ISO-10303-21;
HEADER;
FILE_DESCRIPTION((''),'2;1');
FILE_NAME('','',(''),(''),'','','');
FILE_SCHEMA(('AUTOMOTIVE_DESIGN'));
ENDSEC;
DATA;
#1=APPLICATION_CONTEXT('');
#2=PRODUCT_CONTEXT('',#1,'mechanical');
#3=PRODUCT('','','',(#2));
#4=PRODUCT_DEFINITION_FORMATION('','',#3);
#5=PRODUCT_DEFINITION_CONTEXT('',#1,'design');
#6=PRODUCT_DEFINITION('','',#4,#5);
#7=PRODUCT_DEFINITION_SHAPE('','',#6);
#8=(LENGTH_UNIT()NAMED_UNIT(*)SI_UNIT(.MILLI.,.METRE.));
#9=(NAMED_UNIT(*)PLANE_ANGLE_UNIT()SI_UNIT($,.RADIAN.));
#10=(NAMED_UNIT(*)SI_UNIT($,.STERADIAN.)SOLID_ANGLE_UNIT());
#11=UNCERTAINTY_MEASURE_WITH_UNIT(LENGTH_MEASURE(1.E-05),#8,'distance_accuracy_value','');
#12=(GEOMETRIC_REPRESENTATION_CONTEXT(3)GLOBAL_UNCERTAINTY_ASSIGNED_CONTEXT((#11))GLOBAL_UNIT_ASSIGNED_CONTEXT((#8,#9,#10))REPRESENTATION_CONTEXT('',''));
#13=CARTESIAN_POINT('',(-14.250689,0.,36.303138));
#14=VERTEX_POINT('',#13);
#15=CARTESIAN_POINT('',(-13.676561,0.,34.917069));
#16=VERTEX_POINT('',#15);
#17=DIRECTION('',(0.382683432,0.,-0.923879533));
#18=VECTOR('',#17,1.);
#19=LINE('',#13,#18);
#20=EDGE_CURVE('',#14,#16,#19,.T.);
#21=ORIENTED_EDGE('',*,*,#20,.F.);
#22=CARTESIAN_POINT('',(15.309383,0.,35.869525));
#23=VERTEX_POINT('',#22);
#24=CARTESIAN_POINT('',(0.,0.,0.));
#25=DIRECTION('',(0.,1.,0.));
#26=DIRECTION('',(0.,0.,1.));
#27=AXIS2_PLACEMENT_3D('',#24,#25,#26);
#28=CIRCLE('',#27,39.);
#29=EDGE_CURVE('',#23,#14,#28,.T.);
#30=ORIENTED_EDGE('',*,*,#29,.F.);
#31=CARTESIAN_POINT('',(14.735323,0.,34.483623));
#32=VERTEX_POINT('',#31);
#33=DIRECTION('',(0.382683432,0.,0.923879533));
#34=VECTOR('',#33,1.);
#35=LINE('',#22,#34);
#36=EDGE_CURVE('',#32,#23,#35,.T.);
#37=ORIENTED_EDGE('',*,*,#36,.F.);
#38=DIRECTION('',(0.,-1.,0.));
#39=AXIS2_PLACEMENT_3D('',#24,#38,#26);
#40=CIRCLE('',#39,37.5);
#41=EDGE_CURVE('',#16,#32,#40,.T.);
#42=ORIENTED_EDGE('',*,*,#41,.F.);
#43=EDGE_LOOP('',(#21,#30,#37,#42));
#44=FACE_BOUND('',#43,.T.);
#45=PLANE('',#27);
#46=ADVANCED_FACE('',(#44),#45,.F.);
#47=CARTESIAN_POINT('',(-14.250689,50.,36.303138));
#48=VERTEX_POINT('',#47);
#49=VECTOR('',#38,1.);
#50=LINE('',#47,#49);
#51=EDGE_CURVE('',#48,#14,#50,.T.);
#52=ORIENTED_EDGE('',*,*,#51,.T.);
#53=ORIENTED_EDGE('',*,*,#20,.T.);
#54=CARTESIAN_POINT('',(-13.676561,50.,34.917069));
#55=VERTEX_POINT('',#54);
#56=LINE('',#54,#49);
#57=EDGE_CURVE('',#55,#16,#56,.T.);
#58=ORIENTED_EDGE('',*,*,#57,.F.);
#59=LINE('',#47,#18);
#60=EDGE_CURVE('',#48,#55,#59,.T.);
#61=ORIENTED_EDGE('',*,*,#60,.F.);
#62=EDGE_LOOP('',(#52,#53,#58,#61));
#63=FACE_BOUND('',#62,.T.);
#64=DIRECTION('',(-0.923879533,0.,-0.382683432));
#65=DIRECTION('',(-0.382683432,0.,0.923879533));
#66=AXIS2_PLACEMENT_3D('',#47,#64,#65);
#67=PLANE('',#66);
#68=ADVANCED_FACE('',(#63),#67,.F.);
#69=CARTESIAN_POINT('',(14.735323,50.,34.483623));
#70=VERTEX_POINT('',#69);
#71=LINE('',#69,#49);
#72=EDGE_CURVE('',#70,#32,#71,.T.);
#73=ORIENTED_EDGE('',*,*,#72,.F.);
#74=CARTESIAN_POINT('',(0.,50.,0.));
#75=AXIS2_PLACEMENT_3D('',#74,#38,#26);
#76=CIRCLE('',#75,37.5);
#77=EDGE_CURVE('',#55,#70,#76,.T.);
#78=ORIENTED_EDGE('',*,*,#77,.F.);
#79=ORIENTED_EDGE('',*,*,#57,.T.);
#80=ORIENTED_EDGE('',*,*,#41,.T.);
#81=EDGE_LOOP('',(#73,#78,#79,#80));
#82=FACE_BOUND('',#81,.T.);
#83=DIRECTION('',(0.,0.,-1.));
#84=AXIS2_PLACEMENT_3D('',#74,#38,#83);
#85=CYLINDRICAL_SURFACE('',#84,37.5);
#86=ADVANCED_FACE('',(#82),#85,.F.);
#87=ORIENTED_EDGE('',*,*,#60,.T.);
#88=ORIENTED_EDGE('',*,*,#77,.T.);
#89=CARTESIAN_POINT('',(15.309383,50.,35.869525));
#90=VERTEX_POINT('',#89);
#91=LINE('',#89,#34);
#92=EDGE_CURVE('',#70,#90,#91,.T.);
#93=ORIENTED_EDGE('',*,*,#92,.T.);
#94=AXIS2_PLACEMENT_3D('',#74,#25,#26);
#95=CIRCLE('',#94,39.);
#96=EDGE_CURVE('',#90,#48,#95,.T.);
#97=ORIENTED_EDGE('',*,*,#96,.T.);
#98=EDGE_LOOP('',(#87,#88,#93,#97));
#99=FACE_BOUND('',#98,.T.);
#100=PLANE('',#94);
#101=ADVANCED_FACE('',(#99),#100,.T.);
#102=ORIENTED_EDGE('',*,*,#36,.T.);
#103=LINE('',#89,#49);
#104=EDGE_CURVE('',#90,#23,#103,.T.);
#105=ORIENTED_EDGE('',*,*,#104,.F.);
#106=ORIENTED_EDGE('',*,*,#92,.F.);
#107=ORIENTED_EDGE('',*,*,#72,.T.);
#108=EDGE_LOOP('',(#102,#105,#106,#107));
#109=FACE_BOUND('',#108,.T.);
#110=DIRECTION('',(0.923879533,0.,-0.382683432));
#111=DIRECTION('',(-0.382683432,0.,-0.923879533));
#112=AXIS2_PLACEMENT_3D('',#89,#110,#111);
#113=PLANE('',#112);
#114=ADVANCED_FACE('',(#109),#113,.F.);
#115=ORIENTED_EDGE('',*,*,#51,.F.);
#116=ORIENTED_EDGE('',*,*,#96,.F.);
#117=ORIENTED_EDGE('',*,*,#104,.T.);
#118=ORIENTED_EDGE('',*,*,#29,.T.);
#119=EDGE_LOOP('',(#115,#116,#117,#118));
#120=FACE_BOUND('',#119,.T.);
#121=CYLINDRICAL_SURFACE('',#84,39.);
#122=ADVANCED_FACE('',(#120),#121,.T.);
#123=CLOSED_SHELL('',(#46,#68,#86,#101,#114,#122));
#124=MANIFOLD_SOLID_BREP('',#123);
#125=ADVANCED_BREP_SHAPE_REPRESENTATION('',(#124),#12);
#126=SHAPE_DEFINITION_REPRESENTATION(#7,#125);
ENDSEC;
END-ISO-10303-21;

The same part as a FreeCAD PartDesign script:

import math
import FreeCAD as App
import Part
import Sketcher
from FreeCAD import Vector
Q = App.Units.Quantity

doc = App.newDocument("Part")
body = doc.addObject("PartDesign::Body", "Body")

sketch1 = body.newObject("Sketcher::SketchObject", "Sketch")
sketch1.AttachmentSupport = (doc.getObject("XZ_Plane"), [""])
sketch1.MapMode = "FlatFace"
sketch1.addGeometry(Part.LineSegment(Vector(-14.3, 36.3, 0), Vector(-13.7, 34.9, 0)), False)
sketch1.addGeometry(Part.ArcOfCircle(Part.Circle(Vector(0, 0, 0), Vector(0, 0, 1), 37.5), math.radians(111), math.radians(427)), False)
sketch1.addGeometry(Part.LineSegment(Vector(14.7, 34.5, 0), Vector(15.3, 35.9, 0)), False)
sketch1.addGeometry(Part.ArcOfCircle(Part.Circle(Vector(0, 0, 0), Vector(0, 0, 1), 39), math.radians(111), math.radians(427)), False)
sketch1.addConstraint(Sketcher.Constraint("Coincident", 0, 2, 1, 1))
sketch1.addConstraint(Sketcher.Constraint("Coincident", 1, 2, 2, 1))
sketch1.addConstraint(Sketcher.Constraint("Coincident", 2, 2, 3, 2))
sketch1.addConstraint(Sketcher.Constraint("Coincident", 3, 1, 0, 1))
sketch1.addConstraint(Sketcher.Constraint("Coincident", 1, 3, -1, 1))
sketch1.addConstraint(Sketcher.Constraint("Coincident", 3, 3, -1, 1))
sketch1.addConstraint(Sketcher.Constraint("Radius", 3, 39.0))
sketch1.addConstraint(Sketcher.Constraint("Radius", 1, 37.5))
sketch1.addConstraint(Sketcher.Constraint("Angle", 0, Q("-67.5 deg")))
sketch1.addConstraint(Sketcher.Constraint("Angle", 2, Q("67.5 deg")))
sketch1.addConstraint(Sketcher.Constraint("DistanceX", 0, 2, -1, 1, 13.676561))
sketch1.addConstraint(Sketcher.Constraint("DistanceX", -1, 1, 1, 2, 14.735323))
pad1 = body.newObject("PartDesign::Pad", "Pad")
pad1.Profile = sketch1
pad1.Length = 50
pad1.Reversed = True

doc.recompute()
